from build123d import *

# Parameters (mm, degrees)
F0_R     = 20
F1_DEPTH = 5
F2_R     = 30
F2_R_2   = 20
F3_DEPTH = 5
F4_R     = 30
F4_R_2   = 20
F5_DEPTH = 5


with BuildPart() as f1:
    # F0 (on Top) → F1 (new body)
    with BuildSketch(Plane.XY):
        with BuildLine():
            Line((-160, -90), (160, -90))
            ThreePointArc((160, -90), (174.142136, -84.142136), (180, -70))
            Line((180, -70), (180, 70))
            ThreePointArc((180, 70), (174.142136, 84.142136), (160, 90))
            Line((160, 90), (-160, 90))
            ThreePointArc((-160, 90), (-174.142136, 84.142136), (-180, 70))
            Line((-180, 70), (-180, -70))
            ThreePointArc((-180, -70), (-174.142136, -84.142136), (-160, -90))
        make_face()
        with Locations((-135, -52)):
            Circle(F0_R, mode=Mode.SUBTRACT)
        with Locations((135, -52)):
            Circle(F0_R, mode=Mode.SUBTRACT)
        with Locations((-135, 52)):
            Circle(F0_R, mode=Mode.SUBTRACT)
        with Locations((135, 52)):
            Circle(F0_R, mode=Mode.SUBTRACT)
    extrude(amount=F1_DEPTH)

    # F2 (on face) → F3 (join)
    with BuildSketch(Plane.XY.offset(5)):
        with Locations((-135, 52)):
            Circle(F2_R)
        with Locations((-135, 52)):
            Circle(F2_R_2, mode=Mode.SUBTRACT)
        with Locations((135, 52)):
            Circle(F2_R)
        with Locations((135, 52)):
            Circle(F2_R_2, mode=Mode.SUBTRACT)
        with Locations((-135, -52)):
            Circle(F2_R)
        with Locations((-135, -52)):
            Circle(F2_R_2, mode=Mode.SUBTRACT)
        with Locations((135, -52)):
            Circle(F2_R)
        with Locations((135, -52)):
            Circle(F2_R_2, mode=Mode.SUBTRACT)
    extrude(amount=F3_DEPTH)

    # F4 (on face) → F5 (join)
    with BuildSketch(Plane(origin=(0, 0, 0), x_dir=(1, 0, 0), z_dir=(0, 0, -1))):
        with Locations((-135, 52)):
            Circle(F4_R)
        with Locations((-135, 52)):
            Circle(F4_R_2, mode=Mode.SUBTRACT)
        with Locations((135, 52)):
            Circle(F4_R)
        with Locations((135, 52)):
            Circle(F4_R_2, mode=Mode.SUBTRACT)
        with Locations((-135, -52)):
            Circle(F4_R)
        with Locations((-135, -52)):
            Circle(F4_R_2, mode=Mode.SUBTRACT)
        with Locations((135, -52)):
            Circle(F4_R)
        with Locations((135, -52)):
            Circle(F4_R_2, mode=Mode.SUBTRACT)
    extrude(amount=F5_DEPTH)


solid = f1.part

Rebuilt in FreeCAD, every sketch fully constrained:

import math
import FreeCAD as App
import Part
import Sketcher

V = App.Vector
Q = App.Units.Quantity

doc = App.newDocument("Part")
body = doc.addObject("PartDesign::Body", "Body")

sketch1 = body.newObject("Sketcher::SketchObject", "Sketch")
sketch1.AttachmentSupport = (doc.getObject("XY_Plane"), [""])
sketch1.MapMode = "FlatFace"
sketch1.addGeometry([
    Part.LineSegment(V(-160, -90, 0), V(160, -90, 0)),
    Part.ArcOfCircle(Part.Circle(V(160.000001, -70.000001, 0), V(0, 0, 1), 19.999999), math.radians(-90.000004), math.radians(0.000004)),
    Part.LineSegment(V(180, -70, 0), V(180, 70, 0)),
    Part.ArcOfCircle(Part.Circle(V(160.000001, 70.000001, 0), V(0, 0, 1), 19.999999), math.radians(-0.000004), math.radians(90.000004)),
    Part.LineSegment(V(160, 90, 0), V(-160, 90, 0)),
    Part.ArcOfCircle(Part.Circle(V(-160.000001, 70.000001, 0), V(0, 0, 1), 19.999999), math.radians(89.999996), math.radians(180.000004)),
    Part.LineSegment(V(-180, 70, 0), V(-180, -70, 0)),
    Part.ArcOfCircle(Part.Circle(V(-160.000001, -70.000001, 0), V(0, 0, 1), 19.999999), math.radians(179.999996), math.radians(270.000004)),
    Part.Circle(V(-135, -52, 0), V(0, 0, 1), 20),
    Part.Circle(V(135, -52, 0), V(0, 0, 1), 20),
    Part.Circle(V(-135, 52, 0), V(0, 0, 1), 20),
    Part.Circle(V(135, 52, 0), V(0, 0, 1), 20),
], False)
sketch1.addConstraint([
    Sketcher.Constraint("Tangent", 0, 2, 1, 1),
    Sketcher.Constraint("Tangent", 1, 2, 2, 1),
    Sketcher.Constraint("Tangent", 2, 2, 3, 1),
    Sketcher.Constraint("Tangent", 3, 2, 4, 1),
    Sketcher.Constraint("Tangent", 4, 2, 5, 1),
    Sketcher.Constraint("Tangent", 5, 2, 6, 1),
    Sketcher.Constraint("Tangent", 6, 2, 7, 1),
    Sketcher.Constraint("Tangent", 7, 2, 0, 1),
    Sketcher.Constraint("Horizontal", 0),
    Sketcher.Constraint("Vertical", 2),
    Sketcher.Constraint("Horizontal", 4),
    Sketcher.Constraint("Vertical", 6),
    Sketcher.Constraint("Equal", 1, 3),
    Sketcher.Constraint("Equal", 3, 5),
    Sketcher.Constraint("Equal", 5, 7),
    Sketcher.Constraint("Equal", 7, 8),
    Sketcher.Constraint("Equal", 8, 9),
    Sketcher.Constraint("Equal", 9, 10),
    Sketcher.Constraint("Equal", 10, 11),
    Sketcher.Constraint("Symmetric", 1, 3, 5, 3, -1, 1),
    Sketcher.Constraint("Symmetric", 9, 3, 10, 3, -1, 1),
    Sketcher.Constraint("Symmetric", 8, 3, 11, 3, -1, 1),
    Sketcher.Constraint("Symmetric", 8, 3, 9, 3, -2),
    Sketcher.Constraint("Diameter", 8, Q("40 mm")),
    Sketcher.Constraint("DistanceX", 0, 1, 0, 2, Q("320 mm")),
    Sketcher.Constraint("DistanceY", 2, 1, 2, 2, Q("140 mm")),
    Sketcher.Constraint("DistanceX", 8, 3, -1, 1, Q("135 mm")),
    Sketcher.Constraint("DistanceY", 8, 3, -1, 1, Q("52 mm")),
])
pad1 = body.newObject("PartDesign::Pad", "Pad")
pad1.Profile = sketch1
pad1.Length = 5

sketch2 = body.newObject("Sketcher::SketchObject", "Sketch001")
sketch2.AttachmentSupport = (doc.getObject("XY_Plane"), [""])
sketch2.MapMode = "FlatFace"
sketch2.AttachmentOffset = App.Placement(V(0, 0, 5), App.Rotation())
sketch2.addGeometry([
    Part.Circle(V(-135, 52, 0), V(0, 0, 1), 30),
    Part.Circle(V(-135, 52, 0), V(0, 0, 1), 20),
    Part.Circle(V(135, 52, 0), V(0, 0, 1), 30),
    Part.Circle(V(135, 52, 0), V(0, 0, 1), 20),
    Part.Circle(V(-135, -52, 0), V(0, 0, 1), 30),
    Part.Circle(V(-135, -52, 0), V(0, 0, 1), 20),
    Part.Circle(V(135, -52, 0), V(0, 0, 1), 30),
    Part.Circle(V(135, -52, 0), V(0, 0, 1), 20),
], False)
sketch2.addConstraint([
    Sketcher.Constraint("Coincident", 1, 3, 0, 3),
    Sketcher.Constraint("Coincident", 3, 3, 2, 3),
    Sketcher.Constraint("Coincident", 5, 3, 4, 3),
    Sketcher.Constraint("Coincident", 7, 3, 6, 3),
    Sketcher.Constraint("Equal", 0, 2),
    Sketcher.Constraint("Equal", 1, 3),
    Sketcher.Constraint("Equal", 2, 4),
    Sketcher.Constraint("Equal", 3, 5),
    Sketcher.Constraint("Equal", 4, 6),
    Sketcher.Constraint("Equal", 5, 7),
    Sketcher.Constraint("Symmetric", 2, 3, 4, 3, -1, 1),
    Sketcher.Constraint("Symmetric", 0, 3, 6, 3, -1, 1),
    Sketcher.Constraint("Symmetric", 0, 3, 2, 3, -2),
    Sketcher.Constraint("Diameter", 0, Q("60 mm")),
    Sketcher.Constraint("Diameter", 1, Q("40 mm")),
    Sketcher.Constraint("DistanceX", 0, 3, -1, 1, Q("135 mm")),
    Sketcher.Constraint("DistanceY", -1, 1, 0, 3, Q("52 mm")),
])
pad2 = body.newObject("PartDesign::Pad", "Pad001")
pad2.Profile = sketch2
pad2.Length = 5

sketch3 = body.newObject("Sketcher::SketchObject", "Sketch002")
sketch3.AttachmentSupport = (doc.getObject("XY_Plane"), [""])
sketch3.MapMode = "FlatFace"
sketch3.addGeometry([
    Part.Circle(V(-135, -52, 0), V(0, 0, 1), 30),
    Part.Circle(V(-135, -52, 0), V(0, 0, 1), 20),
    Part.Circle(V(135, -52, 0), V(0, 0, 1), 30),
    Part.Circle(V(135, -52, 0), V(0, 0, 1), 20),
    Part.Circle(V(-135, 52, 0), V(0, 0, 1), 30),
    Part.Circle(V(-135, 52, 0), V(0, 0, 1), 20),
    Part.Circle(V(135, 52, 0), V(0, 0, 1), 30),
    Part.Circle(V(135, 52, 0), V(0, 0, 1), 20),
], False)
sketch3.addConstraint([
    Sketcher.Constraint("Coincident", 1, 3, 0, 3),
    Sketcher.Constraint("Coincident", 3, 3, 2, 3),
    Sketcher.Constraint("Coincident", 5, 3, 4, 3),
    Sketcher.Constraint("Coincident", 7, 3, 6, 3),
    Sketcher.Constraint("Equal", 0, 2),
    Sketcher.Constraint("Equal", 1, 3),
    Sketcher.Constraint("Equal", 2, 4),
    Sketcher.Constraint("Equal", 3, 5),
    Sketcher.Constraint("Equal", 4, 6),
    Sketcher.Constraint("Equal", 5, 7),
    Sketcher.Constraint("Symmetric", 2, 3, 4, 3, -1, 1),
    Sketcher.Constraint("Symmetric", 0, 3, 6, 3, -1, 1),
    Sketcher.Constraint("Symmetric", 0, 3, 2, 3, -2),
    Sketcher.Constraint("Diameter", 0, Q("60 mm")),
    Sketcher.Constraint("Diameter", 1, Q("40 mm")),
    Sketcher.Constraint("DistanceX", 0, 3, -1, 1, Q("135 mm")),
    Sketcher.Constraint("DistanceY", 0, 3, -1, 1, Q("52 mm")),
])
pad3 = body.newObject("PartDesign::Pad", "Pad002")
pad3.Profile = sketch3
pad3.Length = 5
pad3.Reversed = True

doc.recompute()
